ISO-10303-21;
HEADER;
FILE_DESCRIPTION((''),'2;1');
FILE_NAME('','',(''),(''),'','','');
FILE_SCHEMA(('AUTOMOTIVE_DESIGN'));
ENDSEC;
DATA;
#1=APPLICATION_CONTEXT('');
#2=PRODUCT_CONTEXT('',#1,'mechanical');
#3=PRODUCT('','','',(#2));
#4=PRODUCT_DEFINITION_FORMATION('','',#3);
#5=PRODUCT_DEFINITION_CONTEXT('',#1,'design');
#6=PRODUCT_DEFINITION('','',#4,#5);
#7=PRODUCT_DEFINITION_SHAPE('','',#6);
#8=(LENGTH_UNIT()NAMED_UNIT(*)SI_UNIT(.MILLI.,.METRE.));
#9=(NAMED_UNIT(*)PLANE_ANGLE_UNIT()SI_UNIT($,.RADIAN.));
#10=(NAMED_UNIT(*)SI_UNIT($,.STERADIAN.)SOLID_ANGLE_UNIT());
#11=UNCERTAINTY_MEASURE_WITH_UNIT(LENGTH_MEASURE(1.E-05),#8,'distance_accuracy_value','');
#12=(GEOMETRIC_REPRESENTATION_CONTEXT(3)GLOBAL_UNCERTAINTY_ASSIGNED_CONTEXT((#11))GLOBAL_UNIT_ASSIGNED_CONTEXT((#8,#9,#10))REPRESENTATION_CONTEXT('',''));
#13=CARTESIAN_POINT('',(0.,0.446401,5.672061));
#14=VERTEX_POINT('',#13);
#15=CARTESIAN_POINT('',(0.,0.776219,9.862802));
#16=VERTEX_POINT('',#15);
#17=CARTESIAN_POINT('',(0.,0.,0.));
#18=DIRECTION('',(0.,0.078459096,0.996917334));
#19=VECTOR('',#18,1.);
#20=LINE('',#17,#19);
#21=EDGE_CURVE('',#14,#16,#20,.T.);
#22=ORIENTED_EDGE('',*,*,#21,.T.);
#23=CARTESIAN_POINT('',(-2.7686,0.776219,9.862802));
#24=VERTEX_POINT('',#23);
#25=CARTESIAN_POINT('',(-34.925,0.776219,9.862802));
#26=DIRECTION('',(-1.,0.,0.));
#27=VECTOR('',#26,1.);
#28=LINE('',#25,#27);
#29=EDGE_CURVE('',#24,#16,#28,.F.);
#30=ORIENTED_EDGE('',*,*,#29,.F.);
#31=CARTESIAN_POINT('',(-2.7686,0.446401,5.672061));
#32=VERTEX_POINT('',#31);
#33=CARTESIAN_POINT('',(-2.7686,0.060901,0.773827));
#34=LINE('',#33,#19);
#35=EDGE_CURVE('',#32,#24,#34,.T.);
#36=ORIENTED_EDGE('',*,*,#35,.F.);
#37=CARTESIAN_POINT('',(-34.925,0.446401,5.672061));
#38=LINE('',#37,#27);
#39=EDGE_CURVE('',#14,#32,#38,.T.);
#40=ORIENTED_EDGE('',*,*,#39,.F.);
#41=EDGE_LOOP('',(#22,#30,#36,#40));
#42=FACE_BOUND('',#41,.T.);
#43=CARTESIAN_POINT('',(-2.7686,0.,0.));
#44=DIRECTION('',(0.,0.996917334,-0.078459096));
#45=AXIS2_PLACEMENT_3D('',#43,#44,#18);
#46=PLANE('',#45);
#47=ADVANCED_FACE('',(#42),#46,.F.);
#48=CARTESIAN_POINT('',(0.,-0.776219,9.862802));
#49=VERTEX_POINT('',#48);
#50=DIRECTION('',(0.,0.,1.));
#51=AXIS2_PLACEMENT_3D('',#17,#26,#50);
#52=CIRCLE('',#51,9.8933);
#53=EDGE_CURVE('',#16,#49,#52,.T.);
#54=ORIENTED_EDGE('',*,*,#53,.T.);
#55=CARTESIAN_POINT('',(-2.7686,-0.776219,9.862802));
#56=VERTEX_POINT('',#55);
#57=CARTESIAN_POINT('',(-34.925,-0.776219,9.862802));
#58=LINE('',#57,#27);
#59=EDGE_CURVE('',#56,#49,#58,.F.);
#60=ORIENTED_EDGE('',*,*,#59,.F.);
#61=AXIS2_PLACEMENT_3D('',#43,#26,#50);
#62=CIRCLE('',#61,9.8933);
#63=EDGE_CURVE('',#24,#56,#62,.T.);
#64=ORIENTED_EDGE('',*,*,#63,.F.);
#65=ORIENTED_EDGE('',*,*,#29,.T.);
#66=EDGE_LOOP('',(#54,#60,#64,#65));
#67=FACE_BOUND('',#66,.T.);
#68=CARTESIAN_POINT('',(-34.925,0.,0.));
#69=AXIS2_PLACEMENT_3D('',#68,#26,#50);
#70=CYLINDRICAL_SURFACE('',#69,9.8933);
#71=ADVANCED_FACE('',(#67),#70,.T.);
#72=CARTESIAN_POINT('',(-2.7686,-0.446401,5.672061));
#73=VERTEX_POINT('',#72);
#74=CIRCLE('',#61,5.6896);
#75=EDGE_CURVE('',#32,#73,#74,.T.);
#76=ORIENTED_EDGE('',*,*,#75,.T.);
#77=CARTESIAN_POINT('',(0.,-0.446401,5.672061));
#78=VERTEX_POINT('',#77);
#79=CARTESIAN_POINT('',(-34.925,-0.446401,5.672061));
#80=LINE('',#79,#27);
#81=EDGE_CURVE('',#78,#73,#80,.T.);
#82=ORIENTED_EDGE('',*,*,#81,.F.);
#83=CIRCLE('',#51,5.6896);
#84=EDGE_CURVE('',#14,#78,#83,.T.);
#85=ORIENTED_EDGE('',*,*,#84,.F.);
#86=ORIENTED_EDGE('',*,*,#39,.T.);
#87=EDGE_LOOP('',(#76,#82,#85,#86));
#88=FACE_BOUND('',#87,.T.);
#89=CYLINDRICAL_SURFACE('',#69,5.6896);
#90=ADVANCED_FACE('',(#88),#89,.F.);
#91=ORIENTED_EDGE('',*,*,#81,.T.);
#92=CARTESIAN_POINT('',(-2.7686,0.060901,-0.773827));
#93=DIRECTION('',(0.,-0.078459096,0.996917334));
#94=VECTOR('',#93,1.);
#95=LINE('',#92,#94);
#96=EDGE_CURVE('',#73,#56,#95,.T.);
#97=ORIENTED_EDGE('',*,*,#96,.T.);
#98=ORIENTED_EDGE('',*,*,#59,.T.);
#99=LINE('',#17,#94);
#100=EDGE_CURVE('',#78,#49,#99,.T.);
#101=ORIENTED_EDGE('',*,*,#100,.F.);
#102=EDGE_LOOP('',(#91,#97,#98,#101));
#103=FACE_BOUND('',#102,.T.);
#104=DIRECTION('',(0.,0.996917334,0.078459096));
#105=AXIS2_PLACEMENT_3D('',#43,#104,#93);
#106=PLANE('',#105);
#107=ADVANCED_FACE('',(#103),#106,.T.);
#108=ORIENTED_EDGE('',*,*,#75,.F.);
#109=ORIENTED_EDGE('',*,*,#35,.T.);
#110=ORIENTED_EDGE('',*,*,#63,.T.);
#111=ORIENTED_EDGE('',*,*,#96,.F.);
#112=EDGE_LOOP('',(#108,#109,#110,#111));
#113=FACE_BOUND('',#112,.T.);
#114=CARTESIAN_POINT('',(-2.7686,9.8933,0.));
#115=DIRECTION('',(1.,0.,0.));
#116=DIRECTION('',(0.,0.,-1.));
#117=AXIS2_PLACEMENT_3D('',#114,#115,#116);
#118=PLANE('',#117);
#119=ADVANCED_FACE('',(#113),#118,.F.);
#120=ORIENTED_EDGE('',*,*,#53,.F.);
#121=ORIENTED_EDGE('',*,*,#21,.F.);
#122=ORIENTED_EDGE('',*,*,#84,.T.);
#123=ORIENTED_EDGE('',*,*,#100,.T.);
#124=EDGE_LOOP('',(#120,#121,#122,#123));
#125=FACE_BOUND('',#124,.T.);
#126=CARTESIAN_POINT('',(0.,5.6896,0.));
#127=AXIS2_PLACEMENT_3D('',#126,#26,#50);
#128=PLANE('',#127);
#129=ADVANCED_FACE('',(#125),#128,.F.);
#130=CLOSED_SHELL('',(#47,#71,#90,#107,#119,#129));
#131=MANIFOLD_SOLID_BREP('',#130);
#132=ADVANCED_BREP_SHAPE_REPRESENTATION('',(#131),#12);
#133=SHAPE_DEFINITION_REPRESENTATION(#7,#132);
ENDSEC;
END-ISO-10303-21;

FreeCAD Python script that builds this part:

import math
import FreeCAD as App
import Part
import Sketcher
Q = App.Units.Quantity


def add_polygon(sketch, points):
    """Adds a closed chain of lines whose ends are joined by coincident constraints."""
    first, n = sketch.GeometryCount, len(points)
    for a, b in zip(points, points[1:] + points[:1]):
        sketch.addGeometry(Part.LineSegment(App.Vector(*a, 0), App.Vector(*b, 0)), False)
    for i in range(n):
        sketch.addConstraint(Sketcher.Constraint("Coincident", first + i, 2, first + (i + 1) % n, 1))

doc = App.newDocument("Part")
body = doc.addObject("PartDesign::Body", "Body")

# Sketch on XY plane
sketch1 = doc.addObject("Sketcher::SketchObject", "Sketch")
body.addObject(sketch1)
sketch1.AttachmentSupport = (doc.XY_Plane, [""])
sketch1.MapMode = "FlatFace"
add_polygon(sketch1, [(-2.8, 9.9), (-2.8, 5.7), (0, 5.7), (0, 9.9)])  # lines 0-3
sketch1.addConstraint(Sketcher.Constraint("Vertical", 0))
sketch1.addConstraint(Sketcher.Constraint("Horizontal", 1))
sketch1.addConstraint(Sketcher.Constraint("Vertical", 2))
sketch1.addConstraint(Sketcher.Constraint("Horizontal", 3))
sketch1.addConstraint(Sketcher.Constraint("PointOnObject", 1, 2, -2))
sketch1.addConstraint(Sketcher.Constraint("DistanceX", 1, 1, 1, 2, Q("0.109 in")))
sketch1.addConstraint(Sketcher.Constraint("DistanceY", 0, 2, 0, 1, Q("0.1655 in")))
sketch1.addConstraint(Sketcher.Constraint("DistanceY", -1, 1, 0, 2, Q("0.224 in")))
revolution = doc.addObject("PartDesign::Revolution", "Revolution")
body.addObject(revolution)
revolution.Profile = sketch1
revolution.ReferenceAxis = (sketch1, ["H_Axis"])
revolution.Angle = 360

# Sketch on YZ plane
sketch2 = doc.addObject("Sketcher::SketchObject", "Sketch001")
body.addObject(sketch2)
sketch2.AttachmentSupport = (doc.YZ_Plane, [""])
sketch2.MapMode = "FlatFace"
sketch2.addGeometry(Part.LineSegment(App.Vector(0, 0, 0), App.Vector(-0.8, 10.1, 0)), False)
sketch2.addGeometry(Part.ArcOfCircle(Part.Circle(App.Vector(0, 0, 0), App.Vector(0, 0, 1), 10.1), math.radians(85.5), math.radians(94.5)), False)
sketch2.addGeometry(Part.LineSegment(App.Vector(0.8, 10.1, 0), App.Vector(0, 0, 0)), False)
sketch2.addConstraint(Sketcher.Constraint("Coincident", 0, 2, 1, 2))
sketch2.addConstraint(Sketcher.Constraint("Coincident", 1, 1, 2, 1))
sketch2.addConstraint(Sketcher.Constraint("Coincident", 2, 2, 0, 1))
sketch2.addConstraint(Sketcher.Constraint("Coincident", 1, 3, -1, 1))
sketch2.addConstraint(Sketcher.Constraint("Coincident", 2, 2, -1, 1))
sketch2.addConstraint(Sketcher.Constraint("Horizontal", 0, 2, 1, 1))
sketch2.addConstraint(Sketcher.Constraint("Angle", 0, Q("94.5 deg")))
sketch2.addConstraint(Sketcher.Constraint("Radius", 1, Q("10.091166 mm")))
pocket1 = doc.addObject("PartDesign::Pocket", "Pocket")
body.addObject(pocket1)
pocket1.Profile = sketch2
pocket1.Type = "ThroughAll"

doc.recompute()
